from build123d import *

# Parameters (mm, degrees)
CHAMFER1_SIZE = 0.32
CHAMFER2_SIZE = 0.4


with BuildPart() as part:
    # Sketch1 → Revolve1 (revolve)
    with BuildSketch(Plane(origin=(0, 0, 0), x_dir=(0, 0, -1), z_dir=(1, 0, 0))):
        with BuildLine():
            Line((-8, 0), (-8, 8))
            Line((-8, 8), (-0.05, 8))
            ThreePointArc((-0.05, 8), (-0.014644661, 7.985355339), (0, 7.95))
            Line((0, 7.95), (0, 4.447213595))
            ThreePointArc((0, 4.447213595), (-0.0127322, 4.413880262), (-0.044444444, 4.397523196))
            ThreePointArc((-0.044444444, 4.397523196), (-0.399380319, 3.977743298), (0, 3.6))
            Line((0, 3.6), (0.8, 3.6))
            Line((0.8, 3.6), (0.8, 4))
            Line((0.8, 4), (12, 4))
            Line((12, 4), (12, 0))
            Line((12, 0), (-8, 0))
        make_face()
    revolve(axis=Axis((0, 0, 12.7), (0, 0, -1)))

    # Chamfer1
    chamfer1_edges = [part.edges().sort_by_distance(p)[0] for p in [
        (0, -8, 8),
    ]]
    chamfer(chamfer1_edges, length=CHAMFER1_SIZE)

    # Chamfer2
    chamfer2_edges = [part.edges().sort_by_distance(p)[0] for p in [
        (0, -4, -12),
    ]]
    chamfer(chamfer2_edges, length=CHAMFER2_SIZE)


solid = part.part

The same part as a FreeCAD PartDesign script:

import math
import FreeCAD as App
import Part
import Sketcher
from FreeCAD import Vector


def edges_at(feature, points):
    """Names of the edges that pass closest to the given points."""
    edges = feature.Shape.Edges
    near = lambda p: min(range(len(edges)), key=lambda i: edges[i].distToShape(Part.Vertex(*p))[0])
    return sorted({f"Edge{near(p) + 1}" for p in points})

doc = App.newDocument("Part")
body = doc.addObject("PartDesign::Body", "Body")

# Sketch on YZ plane
sketch1 = body.newObject("Sketcher::SketchObject", "Sketch")
sketch1.AttachmentSupport = (doc.getObject("YZ_Plane"), [""])
sketch1.MapMode = "FlatFace"
sketch1.addGeometry([
    Part.LineSegment(Vector(8, 8, 0), Vector(0, 8, 0)),  # 0
    Part.LineSegment(Vector(0, 8, 0), Vector(0, -12, 0)),  # 1
    Part.LineSegment(Vector(0, -12, 0), Vector(4, -12, 0)),  # 2
    Part.LineSegment(Vector(4, -12, 0), Vector(4, -0.8, 0)),  # 3
    Part.LineSegment(Vector(4, -0.8, 0), Vector(3.6, -0.8, 0)),  # 4
    Part.LineSegment(Vector(3.6, -0.8, 0), Vector(3.6, 0, 0)),  # 5
    Part.ArcOfCircle(Part.Circle(Vector(4, 0, 0), Vector(0, 0, 1), 0.4), math.radians(6), math.radians(180)),  # 6
    Part.ArcOfCircle(Part.Circle(Vector(4.447, 0.05, 0), Vector(0, 0, 1), 0.05), math.radians(-174), math.radians(-90)),  # 7
    Part.LineSegment(Vector(4.447, 0, 0), Vector(7.95, 0, 0)),  # 8
    Part.ArcOfCircle(Part.Circle(Vector(7.95, 0.05, 0), Vector(0, 0, 1), 0.05), math.radians(-90), math.radians(0)),  # 9
    Part.LineSegment(Vector(8, 0.05, 0), Vector(8, 8, 0)),  # 10
], False)
sketch1.addConstraint([
    Sketcher.Constraint("Coincident", 0, 2, 1, 1),
    Sketcher.Constraint("Coincident", 1, 2, 2, 1),
    Sketcher.Constraint("Coincident", 2, 2, 3, 1),
    Sketcher.Constraint("Coincident", 3, 2, 4, 1),
    Sketcher.Constraint("Coincident", 4, 2, 5, 1),
    Sketcher.Constraint("Tangent", 5, 2, 6, 2),
    Sketcher.Constraint("Tangent", 6, 1, 7, 1),
    Sketcher.Constraint("Tangent", 7, 2, 8, 1),
    Sketcher.Constraint("Tangent", 8, 2, 9, 1),
    Sketcher.Constraint("Tangent", 9, 2, 10, 1),
    Sketcher.Constraint("Coincident", 10, 2, 0, 1),
    Sketcher.Constraint("Horizontal", 0),
    Sketcher.Constraint("Vertical", 1),
    Sketcher.Constraint("Horizontal", 2),
    Sketcher.Constraint("Vertical", 3),
    Sketcher.Constraint("Horizontal", 4),
    Sketcher.Constraint("Vertical", 5),
    Sketcher.Constraint("Horizontal", 8),
    Sketcher.Constraint("Vertical", 10),
    Sketcher.Constraint("Equal", 7, 9),
    Sketcher.Constraint("PointOnObject", 6, 3, -1),
    Sketcher.Constraint("PointOnObject", 0, 2, -2),
    Sketcher.Constraint("PointOnObject", 7, 2, -1),
    Sketcher.Constraint("Vertical", 6, 3, 2, 2),
    Sketcher.Constraint("Radius", 6, 0.4),
    Sketcher.Constraint("DistanceX", 0, 2, 0, 1, 8.0),
    Sketcher.Constraint("DistanceX", 2, 1, 2, 2, 4.0),
    Sketcher.Constraint("DistanceY", 1, 2, 1, 1, 20.0),
    Sketcher.Constraint("Radius", 7, 0.05),
    Sketcher.Constraint("DistanceY", 3, 1, 3, 2, 11.2),
    Sketcher.Constraint("DistanceY", 5, 1, 5, 2, 0.8),
])
revolution = body.newObject("PartDesign::Revolution", "Revolution")
revolution.Profile = sketch1
revolution.ReferenceAxis = (sketch1, ["V_Axis"])
revolution.Angle = 360
doc.recompute()

chamfer = body.newObject("PartDesign::Chamfer", "Chamfer")
chamfer.Base = (revolution, edges_at(revolution, [(0, -8, 8)]))
chamfer.Size = 0.32
doc.recompute()

chamfer2 = body.newObject("PartDesign::Chamfer", "Chamfer001")
chamfer2.Base = (chamfer, edges_at(chamfer, [(0, -4, -12)]))
chamfer2.Size = 0.4

doc.recompute()
